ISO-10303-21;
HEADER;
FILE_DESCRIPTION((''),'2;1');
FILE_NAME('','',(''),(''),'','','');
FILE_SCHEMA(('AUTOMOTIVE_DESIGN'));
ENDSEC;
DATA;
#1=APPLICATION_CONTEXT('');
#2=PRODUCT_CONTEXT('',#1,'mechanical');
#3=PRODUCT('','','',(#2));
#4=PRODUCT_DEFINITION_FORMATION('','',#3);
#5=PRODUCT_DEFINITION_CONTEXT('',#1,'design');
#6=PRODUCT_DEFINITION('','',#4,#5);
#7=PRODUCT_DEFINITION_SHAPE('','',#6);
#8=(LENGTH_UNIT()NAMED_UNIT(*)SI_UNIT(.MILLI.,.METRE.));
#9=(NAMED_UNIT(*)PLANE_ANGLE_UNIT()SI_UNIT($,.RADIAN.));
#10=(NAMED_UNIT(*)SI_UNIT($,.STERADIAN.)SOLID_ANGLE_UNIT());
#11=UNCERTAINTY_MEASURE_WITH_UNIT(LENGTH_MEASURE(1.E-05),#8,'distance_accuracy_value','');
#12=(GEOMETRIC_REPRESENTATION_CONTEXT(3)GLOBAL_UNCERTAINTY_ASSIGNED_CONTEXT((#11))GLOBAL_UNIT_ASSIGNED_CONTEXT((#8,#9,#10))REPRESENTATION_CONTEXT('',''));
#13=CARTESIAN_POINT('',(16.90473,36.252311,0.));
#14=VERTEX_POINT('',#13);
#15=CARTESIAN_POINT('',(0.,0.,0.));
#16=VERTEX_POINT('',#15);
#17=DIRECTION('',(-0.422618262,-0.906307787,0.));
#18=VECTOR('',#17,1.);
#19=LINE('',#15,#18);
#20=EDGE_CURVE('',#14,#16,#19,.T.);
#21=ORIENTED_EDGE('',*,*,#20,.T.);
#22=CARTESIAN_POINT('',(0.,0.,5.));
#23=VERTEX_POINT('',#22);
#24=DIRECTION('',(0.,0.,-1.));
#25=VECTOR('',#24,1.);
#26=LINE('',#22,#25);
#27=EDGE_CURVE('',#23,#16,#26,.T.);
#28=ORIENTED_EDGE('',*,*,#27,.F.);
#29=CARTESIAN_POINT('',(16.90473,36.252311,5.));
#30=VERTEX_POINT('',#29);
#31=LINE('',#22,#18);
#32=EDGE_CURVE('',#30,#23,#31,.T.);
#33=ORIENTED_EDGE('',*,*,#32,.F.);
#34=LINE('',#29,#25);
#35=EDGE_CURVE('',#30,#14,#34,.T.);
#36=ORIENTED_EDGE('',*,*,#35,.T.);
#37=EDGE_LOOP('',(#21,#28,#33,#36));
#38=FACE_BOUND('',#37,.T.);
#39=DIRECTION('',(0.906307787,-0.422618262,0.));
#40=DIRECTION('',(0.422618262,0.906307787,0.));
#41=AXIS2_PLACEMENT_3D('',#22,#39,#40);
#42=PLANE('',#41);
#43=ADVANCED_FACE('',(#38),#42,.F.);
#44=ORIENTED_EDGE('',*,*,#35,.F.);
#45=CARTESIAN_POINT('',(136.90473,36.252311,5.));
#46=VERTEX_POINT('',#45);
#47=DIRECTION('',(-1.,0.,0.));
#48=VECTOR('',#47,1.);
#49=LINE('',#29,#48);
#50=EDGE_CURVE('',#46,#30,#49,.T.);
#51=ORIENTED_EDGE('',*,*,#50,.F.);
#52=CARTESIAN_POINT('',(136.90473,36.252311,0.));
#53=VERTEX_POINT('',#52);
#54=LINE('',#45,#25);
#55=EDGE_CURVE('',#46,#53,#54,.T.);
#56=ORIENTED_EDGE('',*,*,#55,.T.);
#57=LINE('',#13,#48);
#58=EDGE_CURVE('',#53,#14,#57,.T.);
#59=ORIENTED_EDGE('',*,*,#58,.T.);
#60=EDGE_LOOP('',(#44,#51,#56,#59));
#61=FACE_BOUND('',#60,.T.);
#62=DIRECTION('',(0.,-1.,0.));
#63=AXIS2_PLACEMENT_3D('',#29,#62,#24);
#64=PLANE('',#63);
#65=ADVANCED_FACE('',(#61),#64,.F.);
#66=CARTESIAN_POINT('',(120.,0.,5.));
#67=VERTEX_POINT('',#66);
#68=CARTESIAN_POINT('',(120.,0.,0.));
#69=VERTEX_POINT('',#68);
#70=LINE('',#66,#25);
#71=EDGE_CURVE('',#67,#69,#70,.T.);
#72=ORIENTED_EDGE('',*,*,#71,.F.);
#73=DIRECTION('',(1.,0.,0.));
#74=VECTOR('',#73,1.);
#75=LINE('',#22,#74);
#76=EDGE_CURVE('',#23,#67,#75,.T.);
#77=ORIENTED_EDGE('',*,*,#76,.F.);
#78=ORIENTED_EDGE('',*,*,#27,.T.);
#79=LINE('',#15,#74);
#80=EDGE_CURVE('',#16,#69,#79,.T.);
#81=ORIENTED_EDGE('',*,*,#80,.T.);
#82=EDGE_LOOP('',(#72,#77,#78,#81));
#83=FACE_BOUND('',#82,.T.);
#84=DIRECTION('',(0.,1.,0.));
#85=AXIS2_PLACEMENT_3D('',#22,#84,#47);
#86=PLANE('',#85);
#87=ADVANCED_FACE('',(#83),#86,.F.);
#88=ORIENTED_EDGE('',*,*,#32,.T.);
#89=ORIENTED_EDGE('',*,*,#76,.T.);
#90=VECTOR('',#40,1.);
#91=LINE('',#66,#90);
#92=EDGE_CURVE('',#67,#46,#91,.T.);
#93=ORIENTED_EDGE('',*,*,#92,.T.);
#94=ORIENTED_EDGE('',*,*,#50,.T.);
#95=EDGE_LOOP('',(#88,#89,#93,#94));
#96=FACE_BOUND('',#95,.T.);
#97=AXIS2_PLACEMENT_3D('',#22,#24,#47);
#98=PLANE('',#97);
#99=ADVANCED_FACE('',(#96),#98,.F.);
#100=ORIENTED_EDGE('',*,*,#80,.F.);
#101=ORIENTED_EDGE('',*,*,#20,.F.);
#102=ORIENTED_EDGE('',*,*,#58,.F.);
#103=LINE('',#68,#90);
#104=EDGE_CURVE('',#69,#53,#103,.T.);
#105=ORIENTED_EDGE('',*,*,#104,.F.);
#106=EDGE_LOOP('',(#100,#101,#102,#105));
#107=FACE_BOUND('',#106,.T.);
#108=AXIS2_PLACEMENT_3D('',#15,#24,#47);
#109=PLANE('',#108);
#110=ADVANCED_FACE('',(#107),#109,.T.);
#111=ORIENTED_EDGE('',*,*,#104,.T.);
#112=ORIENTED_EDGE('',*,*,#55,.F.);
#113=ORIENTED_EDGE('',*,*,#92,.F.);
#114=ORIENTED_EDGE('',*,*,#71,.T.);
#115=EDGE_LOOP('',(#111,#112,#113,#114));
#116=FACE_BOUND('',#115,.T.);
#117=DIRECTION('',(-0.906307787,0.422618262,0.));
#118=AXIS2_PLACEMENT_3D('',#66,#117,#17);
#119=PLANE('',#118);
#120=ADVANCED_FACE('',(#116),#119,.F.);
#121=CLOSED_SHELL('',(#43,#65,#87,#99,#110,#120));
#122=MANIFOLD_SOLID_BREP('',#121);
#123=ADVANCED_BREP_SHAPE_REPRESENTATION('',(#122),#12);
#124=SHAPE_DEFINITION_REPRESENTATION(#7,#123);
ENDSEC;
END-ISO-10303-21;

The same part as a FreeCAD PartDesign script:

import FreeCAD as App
import Part
import Sketcher
from FreeCAD import Vector
Q = App.Units.Quantity


def add_polygon(sketch, points):
    """Adds a closed chain of lines whose ends are joined by coincident constraints."""
    first, n = sketch.GeometryCount, len(points)
    for a, b in zip(points, points[1:] + points[:1]):
        sketch.addGeometry(Part.LineSegment(App.Vector(*a, 0), App.Vector(*b, 0)), False)
    for i in range(n):
        sketch.addConstraint(Sketcher.Constraint("Coincident", first + i, 2, first + (i + 1) % n, 1))

doc = App.newDocument("Part")
body = doc.addObject("PartDesign::Body", "Body")

sketch1 = body.newObject("Sketcher::SketchObject", "Sketch")
sketch1.AttachmentSupport = (doc.getObject("XY_Plane"), [""])
sketch1.MapMode = "FlatFace"
add_polygon(sketch1, [(0, 0), (120, 0), (136.90473, 36.252311), (16.90473, 36.252311)])
sketch1.addConstraint(Sketcher.Constraint("Horizontal", 0))
sketch1.addConstraint(Sketcher.Constraint("Horizontal", 2))
sketch1.addConstraint(Sketcher.Constraint("Coincident", 3, 2, -1, 1))
sketch1.addConstraint(Sketcher.Constraint("Parallel", 1, 3))
sketch1.addConstraint(Sketcher.Constraint("DistanceX", 0, 1, 0, 2, 120.0))
sketch1.addConstraint(Sketcher.Constraint("Angle", 1, Q("65 deg")))
sketch1.addConstraint(Sketcher.Constraint("Distance", 1, 40.0))
pad1 = body.newObject("PartDesign::Pad", "Pad")
pad1.Profile = sketch1
pad1.Length = 5

doc.recompute()
